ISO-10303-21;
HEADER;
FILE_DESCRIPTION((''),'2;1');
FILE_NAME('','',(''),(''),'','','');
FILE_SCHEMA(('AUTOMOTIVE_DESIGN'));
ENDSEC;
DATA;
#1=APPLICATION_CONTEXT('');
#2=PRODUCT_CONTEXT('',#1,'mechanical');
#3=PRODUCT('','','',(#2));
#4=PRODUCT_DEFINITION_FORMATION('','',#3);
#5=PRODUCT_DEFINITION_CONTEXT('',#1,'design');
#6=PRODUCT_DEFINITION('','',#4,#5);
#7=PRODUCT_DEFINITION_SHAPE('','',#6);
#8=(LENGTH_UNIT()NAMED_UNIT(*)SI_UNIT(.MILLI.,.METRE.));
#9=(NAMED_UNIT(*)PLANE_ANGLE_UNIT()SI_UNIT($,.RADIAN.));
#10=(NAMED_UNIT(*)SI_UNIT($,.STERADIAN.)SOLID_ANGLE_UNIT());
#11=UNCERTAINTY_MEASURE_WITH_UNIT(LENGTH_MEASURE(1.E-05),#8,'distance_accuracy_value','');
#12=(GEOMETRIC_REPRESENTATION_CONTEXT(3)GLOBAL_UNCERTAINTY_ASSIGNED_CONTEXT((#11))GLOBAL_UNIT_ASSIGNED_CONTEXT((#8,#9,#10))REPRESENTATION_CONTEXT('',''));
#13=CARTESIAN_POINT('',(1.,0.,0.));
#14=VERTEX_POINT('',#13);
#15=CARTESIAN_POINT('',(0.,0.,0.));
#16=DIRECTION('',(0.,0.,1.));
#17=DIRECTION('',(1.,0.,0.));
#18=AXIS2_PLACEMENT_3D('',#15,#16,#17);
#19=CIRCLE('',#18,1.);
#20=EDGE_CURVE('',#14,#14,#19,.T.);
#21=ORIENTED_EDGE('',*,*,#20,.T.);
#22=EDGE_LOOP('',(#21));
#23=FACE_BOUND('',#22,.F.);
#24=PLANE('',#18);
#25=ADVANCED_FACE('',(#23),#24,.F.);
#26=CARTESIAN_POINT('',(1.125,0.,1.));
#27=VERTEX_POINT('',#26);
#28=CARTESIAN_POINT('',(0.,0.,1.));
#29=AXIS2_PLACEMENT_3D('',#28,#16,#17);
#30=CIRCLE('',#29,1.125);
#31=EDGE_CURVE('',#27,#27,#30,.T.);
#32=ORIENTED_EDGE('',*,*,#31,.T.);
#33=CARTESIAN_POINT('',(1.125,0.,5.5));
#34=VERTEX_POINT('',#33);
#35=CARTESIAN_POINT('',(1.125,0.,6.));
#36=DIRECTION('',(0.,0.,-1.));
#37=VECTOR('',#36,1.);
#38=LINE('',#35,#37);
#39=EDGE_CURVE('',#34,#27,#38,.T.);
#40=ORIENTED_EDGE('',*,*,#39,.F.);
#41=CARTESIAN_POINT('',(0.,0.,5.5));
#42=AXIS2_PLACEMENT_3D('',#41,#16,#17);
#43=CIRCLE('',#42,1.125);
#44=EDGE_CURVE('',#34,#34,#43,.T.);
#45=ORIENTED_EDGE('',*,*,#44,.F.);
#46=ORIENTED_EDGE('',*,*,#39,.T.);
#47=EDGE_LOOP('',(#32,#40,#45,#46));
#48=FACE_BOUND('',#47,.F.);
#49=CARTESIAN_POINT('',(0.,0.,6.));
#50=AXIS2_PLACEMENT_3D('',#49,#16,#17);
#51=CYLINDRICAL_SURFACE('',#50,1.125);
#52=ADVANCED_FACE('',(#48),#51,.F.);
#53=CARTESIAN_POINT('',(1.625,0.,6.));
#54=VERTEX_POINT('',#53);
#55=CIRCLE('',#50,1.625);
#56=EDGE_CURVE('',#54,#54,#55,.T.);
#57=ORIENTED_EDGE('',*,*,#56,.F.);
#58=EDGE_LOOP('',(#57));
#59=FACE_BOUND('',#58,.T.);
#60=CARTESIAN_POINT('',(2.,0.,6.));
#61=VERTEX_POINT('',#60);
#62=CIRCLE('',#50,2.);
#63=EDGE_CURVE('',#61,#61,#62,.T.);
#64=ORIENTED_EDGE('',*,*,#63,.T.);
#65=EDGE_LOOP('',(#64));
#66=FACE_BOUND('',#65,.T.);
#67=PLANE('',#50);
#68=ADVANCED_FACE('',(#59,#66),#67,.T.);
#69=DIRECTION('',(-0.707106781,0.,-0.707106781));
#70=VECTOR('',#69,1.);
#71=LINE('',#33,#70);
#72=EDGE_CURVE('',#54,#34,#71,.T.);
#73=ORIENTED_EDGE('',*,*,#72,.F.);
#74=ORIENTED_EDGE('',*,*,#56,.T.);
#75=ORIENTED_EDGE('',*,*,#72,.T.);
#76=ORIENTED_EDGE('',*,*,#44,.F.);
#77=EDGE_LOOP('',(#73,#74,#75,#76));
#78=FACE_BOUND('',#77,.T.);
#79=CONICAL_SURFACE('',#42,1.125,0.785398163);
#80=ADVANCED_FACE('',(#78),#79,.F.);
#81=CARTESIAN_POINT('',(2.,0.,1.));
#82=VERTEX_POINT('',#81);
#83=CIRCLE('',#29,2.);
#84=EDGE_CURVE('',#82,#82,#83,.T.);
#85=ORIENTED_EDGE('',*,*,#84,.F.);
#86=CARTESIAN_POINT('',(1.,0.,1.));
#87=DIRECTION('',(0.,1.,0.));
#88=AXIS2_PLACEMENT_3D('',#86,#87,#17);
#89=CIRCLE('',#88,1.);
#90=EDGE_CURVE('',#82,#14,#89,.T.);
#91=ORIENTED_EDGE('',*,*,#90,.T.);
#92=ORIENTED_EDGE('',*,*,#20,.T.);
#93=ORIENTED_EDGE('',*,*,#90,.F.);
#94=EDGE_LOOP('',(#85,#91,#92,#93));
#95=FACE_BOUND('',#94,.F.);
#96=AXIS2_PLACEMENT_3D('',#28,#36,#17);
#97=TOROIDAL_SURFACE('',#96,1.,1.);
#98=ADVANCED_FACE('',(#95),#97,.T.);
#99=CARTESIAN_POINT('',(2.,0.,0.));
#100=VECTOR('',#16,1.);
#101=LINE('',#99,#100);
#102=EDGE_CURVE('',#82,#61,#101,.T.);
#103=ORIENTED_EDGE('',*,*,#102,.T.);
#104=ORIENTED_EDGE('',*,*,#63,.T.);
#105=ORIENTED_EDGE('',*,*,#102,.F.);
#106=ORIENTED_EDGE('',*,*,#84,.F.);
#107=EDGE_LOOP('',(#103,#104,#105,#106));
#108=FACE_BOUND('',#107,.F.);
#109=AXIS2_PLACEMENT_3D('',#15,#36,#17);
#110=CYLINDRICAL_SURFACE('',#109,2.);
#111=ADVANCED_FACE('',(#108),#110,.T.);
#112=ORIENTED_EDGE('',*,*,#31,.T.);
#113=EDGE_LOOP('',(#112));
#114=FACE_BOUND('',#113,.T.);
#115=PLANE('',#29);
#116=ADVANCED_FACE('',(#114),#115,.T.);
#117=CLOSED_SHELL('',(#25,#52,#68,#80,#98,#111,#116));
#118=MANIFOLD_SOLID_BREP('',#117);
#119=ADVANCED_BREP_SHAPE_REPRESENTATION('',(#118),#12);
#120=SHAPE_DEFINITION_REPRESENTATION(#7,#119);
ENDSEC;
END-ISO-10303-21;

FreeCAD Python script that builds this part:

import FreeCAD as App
import Part
import Sketcher
Q = App.Units.Quantity


def edges_at(feature, points):
    """Names of the edges that pass closest to the given points."""
    edges = feature.Shape.Edges
    near = lambda p: min(range(len(edges)), key=lambda i: edges[i].distToShape(Part.Vertex(*p))[0])
    return sorted({f"Edge{near(p) + 1}" for p in points})

doc = App.newDocument("Part")
body = doc.addObject("PartDesign::Body", "Body")

# Sketch on XY plane
sketch1 = body.newObject("Sketcher::SketchObject", "Sketch")
sketch1.AttachmentSupport = (doc.getObject("XY_Plane"), [""])
sketch1.MapMode = "FlatFace"
sketch1.addGeometry(Part.Circle(App.Vector(0, 0, 0), App.Vector(0, 0, 1), 2), False)
sketch1.addConstraint(Sketcher.Constraint("Coincident", 0, 3, -1, 1))
sketch1.addConstraint(Sketcher.Constraint("Diameter", 0, Q("4 mm")))
pad1 = body.newObject("PartDesign::Pad", "Pad")
pad1.Profile = sketch1
pad1.Length = 6

# Sketch on XY plane
sketch2 = body.newObject("Sketcher::SketchObject", "Sketch001")
sketch2.AttachmentSupport = (doc.getObject("XY_Plane"), [""])
sketch2.MapMode = "FlatFace"
sketch2.AttachmentOffset = App.Placement(App.Vector(0, 0, 6), App.Rotation())
sketch2.addGeometry(Part.Circle(App.Vector(0, 0, 0), App.Vector(0, 0, 1), 1.1), False)
sketch2.addConstraint(Sketcher.Constraint("Coincident", 0, 3, -1, 1))
sketch2.addConstraint(Sketcher.Constraint("Diameter", 0, Q("2.25 mm")))
pocket1 = body.newObject("PartDesign::Pocket", "Pocket")
pocket1.Profile = sketch2
pocket1.Length = 5
doc.recompute()

chamfer = body.newObject("PartDesign::Chamfer", "Chamfer")
chamfer.Base = (pocket1, edges_at(pocket1, [(-1.125, 0, 6)]))
chamfer.Size = 0.5
doc.recompute()

fillet = body.newObject("PartDesign::Fillet", "Fillet")
fillet.Base = (chamfer, edges_at(chamfer, [(-2, 0, 0)]))
fillet.Radius = 1

doc.recompute()
